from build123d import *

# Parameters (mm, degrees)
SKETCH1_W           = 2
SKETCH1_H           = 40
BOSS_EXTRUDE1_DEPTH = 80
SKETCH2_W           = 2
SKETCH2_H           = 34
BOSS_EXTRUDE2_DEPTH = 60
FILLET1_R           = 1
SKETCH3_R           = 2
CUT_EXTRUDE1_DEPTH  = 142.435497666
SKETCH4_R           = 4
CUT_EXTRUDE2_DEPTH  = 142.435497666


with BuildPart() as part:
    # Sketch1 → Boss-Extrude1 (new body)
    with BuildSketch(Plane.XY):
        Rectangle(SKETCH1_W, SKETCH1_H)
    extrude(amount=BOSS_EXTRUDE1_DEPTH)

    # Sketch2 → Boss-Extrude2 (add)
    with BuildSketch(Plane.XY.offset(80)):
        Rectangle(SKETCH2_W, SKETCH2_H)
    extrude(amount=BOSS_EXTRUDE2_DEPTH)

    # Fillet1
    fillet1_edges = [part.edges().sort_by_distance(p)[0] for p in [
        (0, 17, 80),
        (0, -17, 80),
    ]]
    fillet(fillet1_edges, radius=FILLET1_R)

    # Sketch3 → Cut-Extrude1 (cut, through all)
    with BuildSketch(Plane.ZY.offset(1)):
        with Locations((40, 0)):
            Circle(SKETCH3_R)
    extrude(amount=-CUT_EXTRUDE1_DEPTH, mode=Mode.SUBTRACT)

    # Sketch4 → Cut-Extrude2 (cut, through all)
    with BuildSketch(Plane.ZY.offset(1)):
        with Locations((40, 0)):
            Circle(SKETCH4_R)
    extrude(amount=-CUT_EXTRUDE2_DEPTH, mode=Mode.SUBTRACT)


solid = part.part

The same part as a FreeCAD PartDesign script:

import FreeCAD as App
import Part
import Sketcher


def edges_at(feature, points):
    """Names of the edges that pass closest to the given points."""
    edges = feature.Shape.Edges
    near = lambda p: min(range(len(edges)), key=lambda i: edges[i].distToShape(Part.Vertex(*p))[0])
    return sorted({f"Edge{near(p) + 1}" for p in points})

doc = App.newDocument("Part")
params = doc.addObject("Spreadsheet::Sheet", "Params")
for row, (alias, value) in enumerate([
    ("sketch1_width", "2 mm"),
    ("sketch1_height", "40 mm"),
    ("pad1_length", "80 mm"),
    ("sketch2_width", "2 mm"),
    ("sketch2_height", "34 mm"),
    ("pad2_length", "60 mm"),
    ("fillet_radius", "1 mm"),
    ("sketch3_diameter", "4 mm"),
    ("sketch4_diameter", "8 mm"),
], start=1):
    params.set(f"A{row}", alias)
    params.set(f"B{row}", "=" + value)
    params.setAlias(f"B{row}", alias)

body = doc.addObject("PartDesign::Body", "Body")

# Sketch on XY plane
sketch1 = body.newObject("Sketcher::SketchObject", "Sketch")
sketch1.AttachmentSupport = (doc.getObject("XY_Plane"), [""])
sketch1.MapMode = "FlatFace"
sketch1.addGeometry([
    Part.LineSegment(App.Vector(-1, 20, 0), App.Vector(-1, -20, 0)),
    Part.LineSegment(App.Vector(-1, -20, 0), App.Vector(1, -20, 0)),
    Part.LineSegment(App.Vector(1, -20, 0), App.Vector(1, 20, 0)),
    Part.LineSegment(App.Vector(1, 20, 0), App.Vector(-1, 20, 0)),
], False)
sketch1.addConstraint([
    Sketcher.Constraint("Coincident", 0, 2, 1, 1),
    Sketcher.Constraint("Coincident", 1, 2, 2, 1),
    Sketcher.Constraint("Coincident", 2, 2, 3, 1),
    Sketcher.Constraint("Coincident", 3, 2, 0, 1),
    Sketcher.Constraint("Vertical", 0),
    Sketcher.Constraint("Horizontal", 1),
    Sketcher.Constraint("Vertical", 2),
    Sketcher.Constraint("Horizontal", 3),
    Sketcher.Constraint("Symmetric", 0, 2, 2, 2, -1, 1),
    Sketcher.Constraint("DistanceX", 1, 1, 1, 2, 2.0),
    Sketcher.Constraint("DistanceY", 0, 2, 0, 1, 40.0),
])
sketch1.setExpression("Constraints[9]", "Params.sketch1_width")
sketch1.setExpression("Constraints[10]", "Params.sketch1_height")
pad1 = body.newObject("PartDesign::Pad", "Pad")
pad1.Profile = sketch1
pad1.setExpression("Length", "Params.pad1_length")

# Sketch on XY plane
sketch2 = body.newObject("Sketcher::SketchObject", "Sketch001")
sketch2.AttachmentSupport = (doc.getObject("XY_Plane"), [""])
sketch2.MapMode = "FlatFace"
sketch2.AttachmentOffset = App.Placement(App.Vector(0, 0, 80), App.Rotation())
sketch2.addGeometry([
    Part.LineSegment(App.Vector(-1, 17, 0), App.Vector(-1, -17, 0)),
    Part.LineSegment(App.Vector(-1, -17, 0), App.Vector(1, -17, 0)),
    Part.LineSegment(App.Vector(1, -17, 0), App.Vector(1, 17, 0)),
    Part.LineSegment(App.Vector(1, 17, 0), App.Vector(-1, 17, 0)),
], False)
sketch2.addConstraint([
    Sketcher.Constraint("Coincident", 0, 2, 1, 1),
    Sketcher.Constraint("Coincident", 1, 2, 2, 1),
    Sketcher.Constraint("Coincident", 2, 2, 3, 1),
    Sketcher.Constraint("Coincident", 3, 2, 0, 1),
    Sketcher.Constraint("Vertical", 0),
    Sketcher.Constraint("Horizontal", 1),
    Sketcher.Constraint("Vertical", 2),
    Sketcher.Constraint("Horizontal", 3),
    Sketcher.Constraint("Symmetric", 0, 2, 2, 2, -1, 1),
    Sketcher.Constraint("DistanceX", 1, 1, 1, 2, 2.0),
    Sketcher.Constraint("DistanceY", 0, 2, 0, 1, 34.0),
])
sketch2.setExpression("Constraints[9]", "Params.sketch2_width")
sketch2.setExpression("Constraints[10]", "Params.sketch2_height")
pad2 = body.newObject("PartDesign::Pad", "Pad001")
pad2.Profile = sketch2
pad2.setExpression("Length", "Params.pad2_length")
doc.recompute()

fillet = body.newObject("PartDesign::Fillet", "Fillet")
fillet.Base = (pad2, edges_at(pad2, [(0, 17, 80), (0, -17, 80)]))
fillet.setExpression("Radius", "Params.fillet_radius")

# Sketch on YZ plane
sketch3 = body.newObject("Sketcher::SketchObject", "Sketch002")
sketch3.AttachmentSupport = (doc.getObject("YZ_Plane"), [""])
sketch3.MapMode = "FlatFace"
sketch3.AttachmentOffset = App.Placement(App.Vector(0, 0, -1), App.Rotation())
sketch3.addGeometry(Part.Circle(App.Vector(0, 40, 0), App.Vector(0, 0, 1), 2), False)
sketch3.addConstraint([
    Sketcher.Constraint("PointOnObject", 0, 3, -2),
    Sketcher.Constraint("Diameter", 0, 4.0),
    Sketcher.Constraint("DistanceY", -1, 1, 0, 3, 40.0),
])
sketch3.setExpression("Constraints[1]", "Params.sketch3_diameter")
pocket1 = body.newObject("PartDesign::Pocket", "Pocket")
pocket1.Profile = sketch3
pocket1.Type = "ThroughAll"
pocket1.Reversed = True

# Sketch on YZ plane
sketch4 = body.newObject("Sketcher::SketchObject", "Sketch003")
sketch4.AttachmentSupport = (doc.getObject("YZ_Plane"), [""])
sketch4.MapMode = "FlatFace"
sketch4.AttachmentOffset = App.Placement(App.Vector(0, 0, -1), App.Rotation())
sketch4.addGeometry(Part.Circle(App.Vector(0, 40, 0), App.Vector(0, 0, 1), 4), False)
sketch4.addConstraint([
    Sketcher.Constraint("PointOnObject", 0, 3, -2),
    Sketcher.Constraint("Diameter", 0, 8.0),
    Sketcher.Constraint("DistanceY", -1, 1, 0, 3, 40.0),
])
sketch4.setExpression("Constraints[1]", "Params.sketch4_diameter")
pocket2 = body.newObject("PartDesign::Pocket", "Pocket001")
pocket2.Profile = sketch4
pocket2.Type = "ThroughAll"
pocket2.Reversed = True

doc.recompute()
